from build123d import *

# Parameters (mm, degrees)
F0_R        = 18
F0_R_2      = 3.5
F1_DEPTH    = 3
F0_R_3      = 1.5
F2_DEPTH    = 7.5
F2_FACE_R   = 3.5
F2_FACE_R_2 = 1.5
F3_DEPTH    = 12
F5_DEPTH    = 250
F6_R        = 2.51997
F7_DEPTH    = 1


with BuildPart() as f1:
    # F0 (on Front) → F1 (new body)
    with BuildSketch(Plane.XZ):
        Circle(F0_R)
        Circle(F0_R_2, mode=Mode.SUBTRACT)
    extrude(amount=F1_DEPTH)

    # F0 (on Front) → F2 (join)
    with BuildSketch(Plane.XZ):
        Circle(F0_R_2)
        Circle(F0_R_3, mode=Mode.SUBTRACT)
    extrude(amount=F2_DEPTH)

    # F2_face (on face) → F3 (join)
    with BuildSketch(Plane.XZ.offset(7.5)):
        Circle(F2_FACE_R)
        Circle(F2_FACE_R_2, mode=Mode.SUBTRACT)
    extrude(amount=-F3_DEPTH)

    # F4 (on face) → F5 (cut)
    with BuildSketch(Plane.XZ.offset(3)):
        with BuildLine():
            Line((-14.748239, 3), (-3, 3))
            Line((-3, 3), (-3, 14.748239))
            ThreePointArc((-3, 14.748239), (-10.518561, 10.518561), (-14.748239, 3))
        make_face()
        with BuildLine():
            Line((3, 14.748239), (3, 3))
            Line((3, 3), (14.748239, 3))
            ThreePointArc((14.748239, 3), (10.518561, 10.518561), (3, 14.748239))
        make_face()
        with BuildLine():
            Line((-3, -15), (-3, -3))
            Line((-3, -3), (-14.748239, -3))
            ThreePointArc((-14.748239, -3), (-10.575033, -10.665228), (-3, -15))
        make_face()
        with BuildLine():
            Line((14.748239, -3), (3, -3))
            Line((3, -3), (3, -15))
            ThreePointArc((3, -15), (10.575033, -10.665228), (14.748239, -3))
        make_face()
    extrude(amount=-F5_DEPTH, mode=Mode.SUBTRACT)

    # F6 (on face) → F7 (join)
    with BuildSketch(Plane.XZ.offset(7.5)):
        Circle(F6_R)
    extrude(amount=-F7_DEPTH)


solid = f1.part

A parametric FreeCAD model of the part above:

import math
import FreeCAD as App
import Part
import Sketcher

V = App.Vector
Q = App.Units.Quantity

doc = App.newDocument("Part")
body = doc.addObject("PartDesign::Body", "Body")

sketch1 = body.newObject("Sketcher::SketchObject", "Sketch")
sketch1.AttachmentSupport = (doc.getObject("XZ_Plane"), [""])
sketch1.MapMode = "FlatFace"
sketch1.addGeometry(Part.Circle(V(0, 0, 0), V(0, 0, 1), 18), False)
sketch1.addGeometry(Part.Circle(V(0, 0, 0), V(0, 0, 1), 3.5), False)
sketch1.addConstraint(Sketcher.Constraint("Coincident", 0, 3, -1, 1))
sketch1.addConstraint(Sketcher.Constraint("Coincident", 1, 3, -1, 1))
sketch1.addConstraint(Sketcher.Constraint("Diameter", 0, Q("36 mm")))
sketch1.addConstraint(Sketcher.Constraint("Diameter", 1, Q("7 mm")))
pad1 = body.newObject("PartDesign::Pad", "Pad")
pad1.Profile = sketch1
pad1.Length = 3

sketch2 = body.newObject("Sketcher::SketchObject", "Sketch001")
sketch2.AttachmentSupport = (doc.getObject("XZ_Plane"), [""])
sketch2.MapMode = "FlatFace"
sketch2.addGeometry(Part.Circle(V(0, 0, 0), V(0, 0, 1), 3.5), False)
sketch2.addGeometry(Part.Circle(V(0, 0, 0), V(0, 0, 1), 1.5), False)
sketch2.addConstraint(Sketcher.Constraint("Coincident", 0, 3, -1, 1))
sketch2.addConstraint(Sketcher.Constraint("Coincident", 1, 3, -1, 1))
sketch2.addConstraint(Sketcher.Constraint("Diameter", 0, Q("7 mm")))
sketch2.addConstraint(Sketcher.Constraint("Diameter", 1, Q("3 mm")))
pad2 = body.newObject("PartDesign::Pad", "Pad001")
pad2.Profile = sketch2
pad2.Length = 7.5

sketch3 = body.newObject("Sketcher::SketchObject", "Sketch002")
sketch3.AttachmentSupport = (doc.getObject("XZ_Plane"), [""])
sketch3.MapMode = "FlatFace"
sketch3.AttachmentOffset = App.Placement(V(0, 0, 7.5), App.Rotation())
sketch3.addGeometry(Part.Circle(V(0, 0, 0), V(0, 0, 1), 3.5), False)
sketch3.addGeometry(Part.Circle(V(0, 0, 0), V(0, 0, 1), 1.5), False)
sketch3.addConstraint(Sketcher.Constraint("Coincident", 0, 3, -1, 1))
sketch3.addConstraint(Sketcher.Constraint("Coincident", 1, 3, -1, 1))
sketch3.addConstraint(Sketcher.Constraint("Diameter", 0, Q("7 mm")))
sketch3.addConstraint(Sketcher.Constraint("Diameter", 1, Q("3 mm")))
pad3 = body.newObject("PartDesign::Pad", "Pad002")
pad3.Profile = sketch3
pad3.Length = 12
pad3.Reversed = True

sketch4 = body.newObject("Sketcher::SketchObject", "Sketch003")
sketch4.AttachmentSupport = (doc.getObject("XZ_Plane"), [""])
sketch4.MapMode = "FlatFace"
sketch4.AttachmentOffset = App.Placement(V(0, 0, 3), App.Rotation())
sketch4.addGeometry(Part.LineSegment(V(-15, 3, 0), V(-3, 3, 0)), False)
sketch4.addGeometry(Part.LineSegment(V(-3, 3, 0), V(-3, 15, 0)), False)
sketch4.addGeometry(Part.ArcOfCircle(Part.Circle(V(1, -1, 0), V(0, 0, 1), 16), math.radians(104), math.radians(166)), False)
sketch4.addGeometry(Part.LineSegment(V(3, 15, 0), V(3, 3, 0)), False)
sketch4.addGeometry(Part.LineSegment(V(3, 3, 0), V(15, 3, 0)), False)
sketch4.addGeometry(Part.ArcOfCircle(Part.Circle(V(-1, -1, 0), V(0, 0, 1), 16), math.radians(14), math.radians(76)), False)
sketch4.addGeometry(Part.LineSegment(V(-3, -15, 0), V(-3, -3, 0)), False)
sketch4.addGeometry(Part.LineSegment(V(-3, -3, 0), V(-15, -3, 0)), False)
sketch4.addGeometry(Part.ArcOfCircle(Part.Circle(V(1, 1, 0), V(0, 0, 1), 16), math.radians(-167), math.radians(-104)), False)
sketch4.addGeometry(Part.LineSegment(V(15, -3, 0), V(3, -3, 0)), False)
sketch4.addGeometry(Part.LineSegment(V(3, -3, 0), V(3, -15, 0)), False)
sketch4.addGeometry(Part.ArcOfCircle(Part.Circle(V(-1, 1, 0), V(0, 0, 1), 16), math.radians(-76), math.radians(-13)), False)
sketch4.addConstraint(Sketcher.Constraint("Coincident", 0, 2, 1, 1))
sketch4.addConstraint(Sketcher.Constraint("Coincident", 1, 2, 2, 1))
sketch4.addConstraint(Sketcher.Constraint("Coincident", 2, 2, 0, 1))
sketch4.addConstraint(Sketcher.Constraint("Coincident", 3, 2, 4, 1))
sketch4.addConstraint(Sketcher.Constraint("Coincident", 4, 2, 5, 1))
sketch4.addConstraint(Sketcher.Constraint("Coincident", 5, 2, 3, 1))
sketch4.addConstraint(Sketcher.Constraint("Coincident", 6, 2, 7, 1))
sketch4.addConstraint(Sketcher.Constraint("Coincident", 7, 2, 8, 1))
sketch4.addConstraint(Sketcher.Constraint("Coincident", 8, 2, 6, 1))
sketch4.addConstraint(Sketcher.Constraint("Coincident", 9, 2, 10, 1))
sketch4.addConstraint(Sketcher.Constraint("Coincident", 10, 2, 11, 1))
sketch4.addConstraint(Sketcher.Constraint("Coincident", 11, 2, 9, 1))
sketch4.addConstraint(Sketcher.Constraint("Horizontal", 0))
sketch4.addConstraint(Sketcher.Constraint("Vertical", 1))
sketch4.addConstraint(Sketcher.Constraint("Vertical", 3))
sketch4.addConstraint(Sketcher.Constraint("Horizontal", 4))
sketch4.addConstraint(Sketcher.Constraint("Vertical", 6))
sketch4.addConstraint(Sketcher.Constraint("Horizontal", 7))
sketch4.addConstraint(Sketcher.Constraint("Horizontal", 9))
sketch4.addConstraint(Sketcher.Constraint("Vertical", 10))
sketch4.addConstraint(Sketcher.Constraint("Equal", 2, 5))
sketch4.addConstraint(Sketcher.Constraint("Equal", 5, 8))
sketch4.addConstraint(Sketcher.Constraint("Equal", 8, 11))
sketch4.addConstraint(Sketcher.Constraint("Symmetric", 3, 2, 6, 2, -1, 1))
sketch4.addConstraint(Sketcher.Constraint("Symmetric", 0, 2, 9, 2, -1, 1))
sketch4.addConstraint(Sketcher.Constraint("Symmetric", 2, 3, 5, 3, -2))
sketch4.addConstraint(Sketcher.Constraint("Symmetric", 8, 3, 11, 3, -2))
sketch4.addConstraint(Sketcher.Constraint("Symmetric", 0, 2, 3, 2, -2))
sketch4.addConstraint(Sketcher.Constraint("Vertical", 2, 2, 7, 2))
sketch4.addConstraint(Sketcher.Constraint("Equal", 9, 1))
sketch4.addConstraint(Sketcher.Constraint("Radius", 2, Q("16.000002 mm")))
sketch4.addConstraint(Sketcher.Constraint("DistanceY", 6, 1, 6, 2, Q("12 mm")))
sketch4.addConstraint(Sketcher.Constraint("DistanceX", 0, 2, -1, 1, Q("3 mm")))
sketch4.addConstraint(Sketcher.Constraint("DistanceY", -1, 1, 0, 2, Q("3 mm")))
sketch4.addConstraint(Sketcher.Constraint("DistanceX", 0, 1, 0, 2, Q("11.748239 mm")))
pocket1 = body.newObject("PartDesign::Pocket", "Pocket")
pocket1.Profile = sketch4
pocket1.Length = 250

sketch5 = body.newObject("Sketcher::SketchObject", "Sketch004")
sketch5.AttachmentSupport = (doc.getObject("XZ_Plane"), [""])
sketch5.MapMode = "FlatFace"
sketch5.AttachmentOffset = App.Placement(V(0, 0, 7.5), App.Rotation())
sketch5.addGeometry(Part.Circle(V(0, 0, 0), V(0, 0, 1), 2.5), False)
sketch5.addConstraint(Sketcher.Constraint("Coincident", 0, 3, -1, 1))
sketch5.addConstraint(Sketcher.Constraint("Diameter", 0, Q("5.03994 mm")))
pad4 = body.newObject("PartDesign::Pad", "Pad003")
pad4.Profile = sketch5
pad4.Length = 1
pad4.Reversed = True

doc.recompute()
